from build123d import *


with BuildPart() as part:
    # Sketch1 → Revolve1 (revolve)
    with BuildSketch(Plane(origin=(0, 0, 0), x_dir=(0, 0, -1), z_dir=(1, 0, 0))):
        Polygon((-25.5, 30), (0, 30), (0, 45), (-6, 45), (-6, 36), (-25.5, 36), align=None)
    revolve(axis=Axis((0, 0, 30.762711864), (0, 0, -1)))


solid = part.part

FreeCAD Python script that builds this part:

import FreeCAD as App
import Part
import Sketcher
from FreeCAD import Vector
Q = App.Units.Quantity

doc = App.newDocument("Part")
params = doc.addObject("Spreadsheet::Sheet", "Params")
for row, (alias, value) in enumerate([
    ("sketch1_width", "15 mm"),
    ("sketch1_width2", "9 mm"),
    ("sketch1_height", "25.5 mm"),
    ("revolution_angle", "360 deg"),
], start=1):
    params.set(f"A{row}", alias)
    params.set(f"B{row}", "=" + value)
    params.setAlias(f"B{row}", alias)

body = doc.addObject("PartDesign::Body", "Body")

# Sketch on YZ plane
sketch1 = doc.addObject("Sketcher::SketchObject", "Sketch")
body.addObject(sketch1)
sketch1.AttachmentSupport = (doc.YZ_Plane, [""])
sketch1.MapMode = "FlatFace"
sketch1.addGeometry(Part.LineSegment(Vector(30, 25.5, 0), Vector(30, 0, 0)), False)
sketch1.addGeometry(Part.LineSegment(Vector(30, 0, 0), Vector(45, 0, 0)), False)
sketch1.addGeometry(Part.LineSegment(Vector(45, 0, 0), Vector(45, 6, 0)), False)
sketch1.addGeometry(Part.LineSegment(Vector(45, 6, 0), Vector(36, 6, 0)), False)
sketch1.addGeometry(Part.LineSegment(Vector(36, 6, 0), Vector(36, 25.5, 0)), False)
sketch1.addGeometry(Part.LineSegment(Vector(36, 25.5, 0), Vector(30, 25.5, 0)), False)
sketch1.addConstraint(Sketcher.Constraint("Coincident", 0, 2, 1, 1))
sketch1.addConstraint(Sketcher.Constraint("Coincident", 1, 2, 2, 1))
sketch1.addConstraint(Sketcher.Constraint("Coincident", 2, 2, 3, 1))
sketch1.addConstraint(Sketcher.Constraint("Coincident", 3, 2, 4, 1))
sketch1.addConstraint(Sketcher.Constraint("Coincident", 4, 2, 5, 1))
sketch1.addConstraint(Sketcher.Constraint("Coincident", 5, 2, 0, 1))
sketch1.addConstraint(Sketcher.Constraint("Vertical", 0))
sketch1.addConstraint(Sketcher.Constraint("Horizontal", 1))
sketch1.addConstraint(Sketcher.Constraint("Vertical", 2))
sketch1.addConstraint(Sketcher.Constraint("Horizontal", 3))
sketch1.addConstraint(Sketcher.Constraint("Vertical", 4))
sketch1.addConstraint(Sketcher.Constraint("Horizontal", 5))
sketch1.addConstraint(Sketcher.Constraint("PointOnObject", 0, 2, -1))
sketch1.addConstraint(Sketcher.Constraint("Equal", 5, 2))
sketch1.addConstraint(Sketcher.Constraint("DistanceX", 1, 1, 1, 2, Q("15 mm")))
sketch1.addConstraint(Sketcher.Constraint("DistanceX", 3, 2, 3, 1, Q("9 mm")))
sketch1.addConstraint(Sketcher.Constraint("DistanceY", 0, 2, 0, 1, Q("25.5 mm")))
sketch1.addConstraint(Sketcher.Constraint("DistanceX", -1, 1, 0, 2, Q("30 mm")))
sketch1.setExpression("Constraints[14]", "Params.sketch1_width")
sketch1.setExpression("Constraints[15]", "Params.sketch1_width2")
sketch1.setExpression("Constraints[16]", "Params.sketch1_height")
revolution = doc.addObject("PartDesign::Revolution", "Revolution")
body.addObject(revolution)
revolution.Profile = sketch1
revolution.ReferenceAxis = (sketch1, ["V_Axis"])
revolution.setExpression("Angle", "Params.revolution_angle")

doc.recompute()
